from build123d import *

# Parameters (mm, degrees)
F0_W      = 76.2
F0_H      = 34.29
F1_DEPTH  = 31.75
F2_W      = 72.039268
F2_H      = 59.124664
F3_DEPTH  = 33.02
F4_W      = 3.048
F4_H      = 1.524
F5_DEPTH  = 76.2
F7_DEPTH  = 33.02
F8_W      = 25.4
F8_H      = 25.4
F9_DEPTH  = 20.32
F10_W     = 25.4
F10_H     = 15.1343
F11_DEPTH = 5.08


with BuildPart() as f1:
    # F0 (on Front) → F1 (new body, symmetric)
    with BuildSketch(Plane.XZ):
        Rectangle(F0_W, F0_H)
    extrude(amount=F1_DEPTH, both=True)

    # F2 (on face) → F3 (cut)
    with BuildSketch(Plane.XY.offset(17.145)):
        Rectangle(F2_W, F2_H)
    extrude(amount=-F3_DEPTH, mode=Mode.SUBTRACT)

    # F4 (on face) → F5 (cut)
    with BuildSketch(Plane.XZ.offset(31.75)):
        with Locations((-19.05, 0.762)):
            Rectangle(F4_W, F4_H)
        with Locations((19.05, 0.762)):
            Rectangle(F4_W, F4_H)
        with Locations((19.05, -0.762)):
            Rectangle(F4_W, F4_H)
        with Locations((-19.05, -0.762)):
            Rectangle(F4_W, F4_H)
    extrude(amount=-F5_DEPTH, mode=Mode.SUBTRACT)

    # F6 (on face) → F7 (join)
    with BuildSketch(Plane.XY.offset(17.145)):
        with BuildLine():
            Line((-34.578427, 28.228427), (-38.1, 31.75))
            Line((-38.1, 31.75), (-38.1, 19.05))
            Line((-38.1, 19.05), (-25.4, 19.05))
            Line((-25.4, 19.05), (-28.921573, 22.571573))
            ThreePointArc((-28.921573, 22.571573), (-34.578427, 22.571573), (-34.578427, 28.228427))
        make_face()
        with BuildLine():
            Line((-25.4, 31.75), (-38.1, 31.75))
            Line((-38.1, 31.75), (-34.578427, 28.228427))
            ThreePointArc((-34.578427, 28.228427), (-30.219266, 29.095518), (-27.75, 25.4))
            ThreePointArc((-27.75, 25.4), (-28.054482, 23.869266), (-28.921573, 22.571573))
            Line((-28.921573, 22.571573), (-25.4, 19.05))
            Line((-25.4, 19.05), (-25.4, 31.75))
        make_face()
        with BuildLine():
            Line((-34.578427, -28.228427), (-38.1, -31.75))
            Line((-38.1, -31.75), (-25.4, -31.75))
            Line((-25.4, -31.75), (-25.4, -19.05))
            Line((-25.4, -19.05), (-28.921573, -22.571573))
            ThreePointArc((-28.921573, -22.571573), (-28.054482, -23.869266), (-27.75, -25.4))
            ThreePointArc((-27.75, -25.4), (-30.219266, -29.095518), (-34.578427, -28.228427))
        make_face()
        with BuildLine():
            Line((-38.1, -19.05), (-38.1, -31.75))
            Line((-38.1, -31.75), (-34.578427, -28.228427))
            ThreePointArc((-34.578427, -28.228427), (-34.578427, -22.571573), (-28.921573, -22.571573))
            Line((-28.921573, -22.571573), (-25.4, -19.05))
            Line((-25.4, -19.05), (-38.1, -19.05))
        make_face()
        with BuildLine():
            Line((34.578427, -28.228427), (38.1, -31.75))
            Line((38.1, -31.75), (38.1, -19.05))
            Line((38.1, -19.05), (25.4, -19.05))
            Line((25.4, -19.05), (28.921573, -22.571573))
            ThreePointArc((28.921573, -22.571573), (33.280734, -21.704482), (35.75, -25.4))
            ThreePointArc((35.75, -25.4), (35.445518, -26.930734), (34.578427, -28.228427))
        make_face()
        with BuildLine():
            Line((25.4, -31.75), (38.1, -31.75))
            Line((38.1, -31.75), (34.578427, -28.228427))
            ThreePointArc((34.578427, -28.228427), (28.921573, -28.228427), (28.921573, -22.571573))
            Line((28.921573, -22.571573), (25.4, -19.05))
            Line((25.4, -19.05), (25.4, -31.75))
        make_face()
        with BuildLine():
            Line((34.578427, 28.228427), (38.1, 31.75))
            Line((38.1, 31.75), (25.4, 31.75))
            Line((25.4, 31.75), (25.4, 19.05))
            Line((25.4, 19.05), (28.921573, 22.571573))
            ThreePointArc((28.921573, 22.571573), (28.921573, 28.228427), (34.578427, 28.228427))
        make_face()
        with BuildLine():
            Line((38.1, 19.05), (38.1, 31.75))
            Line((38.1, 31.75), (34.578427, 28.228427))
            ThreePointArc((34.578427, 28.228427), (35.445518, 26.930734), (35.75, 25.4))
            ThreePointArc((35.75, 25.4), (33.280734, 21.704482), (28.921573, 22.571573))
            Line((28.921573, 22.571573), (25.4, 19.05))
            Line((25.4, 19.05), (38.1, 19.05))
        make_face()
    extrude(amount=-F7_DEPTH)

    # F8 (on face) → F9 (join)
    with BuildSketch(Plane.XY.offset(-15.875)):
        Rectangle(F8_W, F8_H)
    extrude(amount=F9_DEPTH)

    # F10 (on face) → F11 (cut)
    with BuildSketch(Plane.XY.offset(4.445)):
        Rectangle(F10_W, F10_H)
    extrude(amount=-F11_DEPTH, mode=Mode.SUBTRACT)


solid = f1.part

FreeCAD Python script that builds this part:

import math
import FreeCAD as App
import Part
import Sketcher
from FreeCAD import Vector
Q = App.Units.Quantity


def add_polygon(sketch, points):
    """Adds a closed chain of lines whose ends are joined by coincident constraints."""
    first, n = sketch.GeometryCount, len(points)
    for a, b in zip(points, points[1:] + points[:1]):
        sketch.addGeometry(Part.LineSegment(App.Vector(*a, 0), App.Vector(*b, 0)), False)
    for i in range(n):
        sketch.addConstraint(Sketcher.Constraint("Coincident", first + i, 2, first + (i + 1) % n, 1))

doc = App.newDocument("Part")
params = doc.addObject("Spreadsheet::Sheet", "Params")
for row, (alias, value) in enumerate([
    ("sketch1_width", "3 in"),
    ("sketch1_height", "1.35 in"),
    ("pad1_length", "2.5 in"),
    ("pocket1_length", "1.3 in"),
    ("sketch3_width", "0.12 in"),
    ("pocket2_length", "3 in"),
    ("sketch4_width", "0.5 in"),
    ("pad2_length", "1.3 in"),
    ("sketch5_width", "1 in"),
    ("pad3_length", "0.8 in"),
    ("sketch6_width", "1 in"),
    ("pocket3_length", "0.2 in"),
], start=1):
    params.set(f"A{row}", alias)
    params.set(f"B{row}", "=" + value)
    params.setAlias(f"B{row}", alias)

body = doc.addObject("PartDesign::Body", "Body")

# Sketch on XZ plane
sketch1 = doc.addObject("Sketcher::SketchObject", "Sketch")
body.addObject(sketch1)
sketch1.AttachmentSupport = (doc.XZ_Plane, [""])
sketch1.MapMode = "FlatFace"
add_polygon(sketch1, [(-38.1, 17.145), (-38.1, -17.145), (38.1, -17.145), (38.1, 17.145)])  # lines 0-3
sketch1.addConstraint([
    Sketcher.Constraint("Vertical", 0),
    Sketcher.Constraint("Horizontal", 1),
    Sketcher.Constraint("Vertical", 2),
    Sketcher.Constraint("Horizontal", 3),
    Sketcher.Constraint("Symmetric", 0, 2, 2, 2, -1, 1),
    Sketcher.Constraint("DistanceX", 1, 1, 1, 2, Q("3 in")),
    Sketcher.Constraint("DistanceY", 0, 2, 0, 1, Q("1.35 in")),
])
sketch1.setExpression("Constraints[9]", "Params.sketch1_width")
sketch1.setExpression("Constraints[10]", "Params.sketch1_height")
pad1 = doc.addObject("PartDesign::Pad", "Pad")
body.addObject(pad1)
pad1.Profile = sketch1
pad1.setExpression("Length", "Params.pad1_length")
pad1.Midplane = True

# Sketch on XY plane
sketch2 = doc.addObject("Sketcher::SketchObject", "Sketch001")
body.addObject(sketch2)
sketch2.AttachmentSupport = (doc.XY_Plane, [""])
sketch2.MapMode = "FlatFace"
sketch2.AttachmentOffset = App.Placement(Vector(0, 0, 0.675 * 25.4), App.Rotation())
add_polygon(sketch2, [(-36.019634, 29.562332), (-36.019634, -29.562332), (36.019634, -29.562332), (36.019634, 29.562332)])  # lines 0-3
sketch2.addConstraint([
    Sketcher.Constraint("Vertical", 0),
    Sketcher.Constraint("Horizontal", 1),
    Sketcher.Constraint("Vertical", 2),
    Sketcher.Constraint("Horizontal", 3),
    Sketcher.Constraint("Symmetric", 0, 2, 2, 2, -1, 1),
    Sketcher.Constraint("DistanceX", 1, 1, 1, 2, 72.039268),
    Sketcher.Constraint("DistanceY", 0, 2, 0, 1, 59.124664),
])
pocket1 = doc.addObject("PartDesign::Pocket", "Pocket")
body.addObject(pocket1)
pocket1.Profile = sketch2
pocket1.setExpression("Length", "Params.pocket1_length")

# Sketch on XZ plane
sketch3 = doc.addObject("Sketcher::SketchObject", "Sketch002")
body.addObject(sketch3)
sketch3.AttachmentSupport = (doc.XZ_Plane, [""])
sketch3.MapMode = "FlatFace"
sketch3.AttachmentOffset = App.Placement(Vector(0, 0, 1.25 * 25.4), App.Rotation())
add_polygon(sketch3, [(-20.574, 1.524), (-20.574, -1.524), (-17.526, -1.524), (-17.526, 1.524)])  # lines 0-3
add_polygon(sketch3, [(17.526, 1.524), (17.526, -1.524), (20.574, -1.524), (20.574, 1.524)])  # lines 4-7
sketch3.addConstraint([
    Sketcher.Constraint("Vertical", 0),
    Sketcher.Constraint("Horizontal", 1),
    Sketcher.Constraint("Vertical", 2),
    Sketcher.Constraint("Horizontal", 3),
    Sketcher.Constraint("Vertical", 4),
    Sketcher.Constraint("Horizontal", 5),
    Sketcher.Constraint("Vertical", 6),
    Sketcher.Constraint("Horizontal", 7),
    Sketcher.Constraint("Symmetric", 2, 2, 4, 2, -1, 1),
    Sketcher.Constraint("Symmetric", 0, 2, 6, 2, -1, 1),
    Sketcher.Constraint("Horizontal", 1, 2, 4, 2),
    Sketcher.Constraint("Equal", 7, 0),
    Sketcher.Constraint("DistanceX", 1, 1, 1, 2, Q("0.12 in")),
    Sketcher.Constraint("DistanceX", 0, 2, 4, 2, Q("1.5 in")),
])
sketch3.setExpression("Constraints[20]", "Params.sketch3_width")
pocket2 = doc.addObject("PartDesign::Pocket", "Pocket001")
body.addObject(pocket2)
pocket2.Profile = sketch3
pocket2.setExpression("Length", "Params.pocket2_length")

# Sketch on XY plane
sketch4 = doc.addObject("Sketcher::SketchObject", "Sketch003")
body.addObject(sketch4)
sketch4.AttachmentSupport = (doc.XY_Plane, [""])
sketch4.MapMode = "FlatFace"
sketch4.AttachmentOffset = App.Placement(Vector(0, 0, 0.675 * 25.4), App.Rotation())
add_polygon(sketch4, [(-38.1, 31.75), (-38.1, 19.05), (-25.4, 19.05), (-25.4, 31.75)])  # lines 0-3
sketch4.addGeometry(Part.ArcOfCircle(Part.Circle(Vector(-31.75, 25.4, 0), Vector(0, 0, 1), 4), math.radians(135), math.radians(315)), False)  # 4
sketch4.addGeometry(Part.ArcOfCircle(Part.Circle(Vector(-31.75, 25.4, 0), Vector(0, 0, 1), 4), math.radians(-0.000001), math.radians(135.000002)), False)  # 5
sketch4.addGeometry(Part.ArcOfCircle(Part.Circle(Vector(-31.749999, 25.4, 0), Vector(0, 0, 1), 3.999999), math.radians(-45.000008), math.radians(0.000002)), False)  # 6
add_polygon(sketch4, [(-38.1, -31.75), (-25.4, -31.75), (-25.4, -19.05), (-38.1, -19.05)])  # lines 7-10
sketch4.addGeometry(Part.ArcOfCircle(Part.Circle(Vector(-31.749999, -25.4, 0), Vector(0, 0, 1), 3.999999), math.radians(-0.000002), math.radians(45.000008)), False)  # 11
sketch4.addGeometry(Part.ArcOfCircle(Part.Circle(Vector(-31.75, -25.4, 0), Vector(0, 0, 1), 4), math.radians(-135.000002), math.radians(0.000001)), False)  # 12
sketch4.addGeometry(Part.ArcOfCircle(Part.Circle(Vector(-31.75, -25.4, 0), Vector(0, 0, 1), 4), math.radians(45), math.radians(225)), False)  # 13
add_polygon(sketch4, [(38.1, -31.75), (38.1, -19.05), (25.4, -19.05), (25.4, -31.75)])  # lines 14-17
sketch4.addGeometry(Part.ArcOfCircle(Part.Circle(Vector(31.75, -25.4, 0), Vector(0, 0, 1), 4), math.radians(-0.000001), math.radians(135.000002)), False)  # 18
sketch4.addGeometry(Part.ArcOfCircle(Part.Circle(Vector(31.750001, -25.4, 0), Vector(0, 0, 1), 3.999999), math.radians(-45.000008), math.radians(0.000002)), False)  # 19
sketch4.addGeometry(Part.ArcOfCircle(Part.Circle(Vector(31.75, -25.4, 0), Vector(0, 0, 1), 4), math.radians(135), math.radians(315)), False)  # 20
add_polygon(sketch4, [(38.1, 31.75), (25.4, 31.75), (25.4, 19.05), (38.1, 19.05)])  # lines 21-24
sketch4.addGeometry(Part.ArcOfCircle(Part.Circle(Vector(31.75, 25.4, 0), Vector(0, 0, 1), 4), math.radians(45), math.radians(225)), False)  # 25
sketch4.addGeometry(Part.ArcOfCircle(Part.Circle(Vector(31.750001, 25.4, 0), Vector(0, 0, 1), 3.999999), math.radians(-0.000002), math.radians(45.000008)), False)  # 26
sketch4.addGeometry(Part.ArcOfCircle(Part.Circle(Vector(31.75, 25.4, 0), Vector(0, 0, 1), 4), math.radians(-135.000002), math.radians(0.000001)), False)  # 27
sketch4.addConstraint([
    Sketcher.Constraint("Tangent", 4, 1, 5, 2),
    Sketcher.Constraint("Tangent", 5, 1, 6, 2),
    Sketcher.Constraint("Tangent", 6, 1, 4, 2),
    Sketcher.Constraint("Tangent", 11, 1, 12, 2),
    Sketcher.Constraint("Tangent", 12, 1, 13, 2),
    Sketcher.Constraint("Tangent", 13, 1, 11, 2),
    Sketcher.Constraint("Tangent", 18, 1, 19, 2),
    Sketcher.Constraint("Tangent", 19, 1, 20, 2),
    Sketcher.Constraint("Tangent", 20, 1, 18, 2),
    Sketcher.Constraint("Tangent", 25, 1, 26, 2),
    Sketcher.Constraint("Tangent", 26, 1, 27, 2),
    Sketcher.Constraint("Tangent", 27, 1, 25, 2),
    Sketcher.Constraint("Vertical", 0),
    Sketcher.Constraint("Horizontal", 1),
    Sketcher.Constraint("Vertical", 2),
    Sketcher.Constraint("Horizontal", 3),
    Sketcher.Constraint("Horizontal", 7),
    Sketcher.Constraint("Vertical", 8),
    Sketcher.Constraint("Horizontal", 9),
    Sketcher.Constraint("Vertical", 10),
    Sketcher.Constraint("Vertical", 14),
    Sketcher.Constraint("Horizontal", 15),
    Sketcher.Constraint("Vertical", 16),
    Sketcher.Constraint("Horizontal", 17),
    Sketcher.Constraint("Horizontal", 21),
    Sketcher.Constraint("Vertical", 22),
    Sketcher.Constraint("Horizontal", 23),
    Sketcher.Constraint("Vertical", 24),
    Sketcher.Constraint("Equal", 6, 11),
    Sketcher.Constraint("Equal", 13, 18),
    Sketcher.Constraint("Equal", 20, 25),
    Sketcher.Constraint("Symmetric", 4, 3, 18, 3, -1, 1),
    Sketcher.Constraint("Symmetric", 11, 3, 25, 3, -1, 1),
    Sketcher.Constraint("Symmetric", 0, 2, 14, 2, -1, 1),
    Sketcher.Constraint("Symmetric", 2, 2, 16, 2, -1, 1),
    Sketcher.Constraint("Symmetric", 7, 2, 21, 2, -1, 1),
    Sketcher.Constraint("Symmetric", 9, 2, 23, 2, -1, 1),
    Sketcher.Constraint("Symmetric", 11, 3, 18, 3, -2),
    Sketcher.Constraint("Symmetric", 9, 2, 14, 2, -2),
    Sketcher.Constraint("Symmetric", 7, 2, 16, 2, -2),
    Sketcher.Constraint("Horizontal", 27, 3, 5, 1),
    Sketcher.Constraint("Horizontal", 20, 3, 11, 1),
    Sketcher.Constraint("Horizontal", 11, 1, 18, 1),
    Sketcher.Constraint("Horizontal", 12, 1, 19, 1),
    Sketcher.Constraint("Horizontal", 13, 1, 20, 1),
    Sketcher.Constraint("Horizontal", 4, 1, 25, 1),
    Sketcher.Constraint("Horizontal", 5, 1, 26, 1),
    Sketcher.Constraint("Horizontal", 6, 1, 27, 1),
    Sketcher.Constraint("Vertical", 4, 1, 12, 1),
    Sketcher.Constraint("Vertical", 6, 1, 13, 1),
    Sketcher.Constraint("Equal", 23, 0),
    Sketcher.Constraint("DistanceX", 1, 1, 1, 2, Q("0.5 in")),
    Sketcher.Constraint("DistanceY", -1, 1, 4, 3, Q("1 in")),
    Sketcher.Constraint("DistanceX", 1, 2, -1, 1, Q("1 in")),
    Sketcher.Constraint("DistanceY", 7, 2, 1, 2, Q("2 in")),
    Sketcher.Constraint("DistanceX", 11, 3, 18, 3, Q("2.5 in")),
    Sketcher.Constraint("Radius", 4, 4.0),
    Sketcher.Constraint("DistanceX", 4, 1, -1, 1, 34.578427),
    Sketcher.Constraint("DistanceX", 6, 1, -1, 1, 28.921573),
])
sketch4.setExpression("Constraints[67]", "Params.sketch4_width")
pad2 = doc.addObject("PartDesign::Pad", "Pad001")
body.addObject(pad2)
pad2.Profile = sketch4
pad2.setExpression("Length", "Params.pad2_length")
pad2.Reversed = True

# Sketch on XY plane
sketch5 = doc.addObject("Sketcher::SketchObject", "Sketch004")
body.addObject(sketch5)
sketch5.AttachmentSupport = (doc.XY_Plane, [""])
sketch5.MapMode = "FlatFace"
sketch5.AttachmentOffset = App.Placement(Vector(0, 0, -0.625 * 25.4), App.Rotation())
add_polygon(sketch5, [(-12.7, 12.7), (-12.7, -12.7), (12.7, -12.7), (12.7, 12.7)])  # lines 0-3
sketch5.addConstraint([
    Sketcher.Constraint("Vertical", 0),
    Sketcher.Constraint("Horizontal", 1),
    Sketcher.Constraint("Vertical", 2),
    Sketcher.Constraint("Horizontal", 3),
    Sketcher.Constraint("Symmetric", 0, 2, 2, 2, -1, 1),
    Sketcher.Constraint("Equal", 3, 0),
    Sketcher.Constraint("DistanceX", 1, 1, 1, 2, Q("1 in")),
])
sketch5.setExpression("Constraints[10]", "Params.sketch5_width")
pad3 = doc.addObject("PartDesign::Pad", "Pad002")
body.addObject(pad3)
pad3.Profile = sketch5
pad3.setExpression("Length", "Params.pad3_length")

# Sketch on XY plane
sketch6 = doc.addObject("Sketcher::SketchObject", "Sketch005")
body.addObject(sketch6)
sketch6.AttachmentSupport = (doc.XY_Plane, [""])
sketch6.MapMode = "FlatFace"
sketch6.AttachmentOffset = App.Placement(Vector(0, 0, 0.175 * 25.4), App.Rotation())
add_polygon(sketch6, [(-12.7, 7.56715), (-12.7, -7.56715), (12.7, -7.56715), (12.7, 7.56715)])  # lines 0-3
sketch6.addConstraint([
    Sketcher.Constraint("Vertical", 0),
    Sketcher.Constraint("Horizontal", 1),
    Sketcher.Constraint("Vertical", 2),
    Sketcher.Constraint("Horizontal", 3),
    Sketcher.Constraint("Symmetric", 0, 2, 2, 2, -1, 1),
    Sketcher.Constraint("DistanceX", 1, 1, 1, 2, Q("1 in")),
    Sketcher.Constraint("DistanceY", 0, 2, 0, 1, 15.1343),
])
sketch6.setExpression("Constraints[9]", "Params.sketch6_width")
pocket3 = doc.addObject("PartDesign::Pocket", "Pocket002")
body.addObject(pocket3)
pocket3.Profile = sketch6
pocket3.setExpression("Length", "Params.pocket3_length")

doc.recompute()
